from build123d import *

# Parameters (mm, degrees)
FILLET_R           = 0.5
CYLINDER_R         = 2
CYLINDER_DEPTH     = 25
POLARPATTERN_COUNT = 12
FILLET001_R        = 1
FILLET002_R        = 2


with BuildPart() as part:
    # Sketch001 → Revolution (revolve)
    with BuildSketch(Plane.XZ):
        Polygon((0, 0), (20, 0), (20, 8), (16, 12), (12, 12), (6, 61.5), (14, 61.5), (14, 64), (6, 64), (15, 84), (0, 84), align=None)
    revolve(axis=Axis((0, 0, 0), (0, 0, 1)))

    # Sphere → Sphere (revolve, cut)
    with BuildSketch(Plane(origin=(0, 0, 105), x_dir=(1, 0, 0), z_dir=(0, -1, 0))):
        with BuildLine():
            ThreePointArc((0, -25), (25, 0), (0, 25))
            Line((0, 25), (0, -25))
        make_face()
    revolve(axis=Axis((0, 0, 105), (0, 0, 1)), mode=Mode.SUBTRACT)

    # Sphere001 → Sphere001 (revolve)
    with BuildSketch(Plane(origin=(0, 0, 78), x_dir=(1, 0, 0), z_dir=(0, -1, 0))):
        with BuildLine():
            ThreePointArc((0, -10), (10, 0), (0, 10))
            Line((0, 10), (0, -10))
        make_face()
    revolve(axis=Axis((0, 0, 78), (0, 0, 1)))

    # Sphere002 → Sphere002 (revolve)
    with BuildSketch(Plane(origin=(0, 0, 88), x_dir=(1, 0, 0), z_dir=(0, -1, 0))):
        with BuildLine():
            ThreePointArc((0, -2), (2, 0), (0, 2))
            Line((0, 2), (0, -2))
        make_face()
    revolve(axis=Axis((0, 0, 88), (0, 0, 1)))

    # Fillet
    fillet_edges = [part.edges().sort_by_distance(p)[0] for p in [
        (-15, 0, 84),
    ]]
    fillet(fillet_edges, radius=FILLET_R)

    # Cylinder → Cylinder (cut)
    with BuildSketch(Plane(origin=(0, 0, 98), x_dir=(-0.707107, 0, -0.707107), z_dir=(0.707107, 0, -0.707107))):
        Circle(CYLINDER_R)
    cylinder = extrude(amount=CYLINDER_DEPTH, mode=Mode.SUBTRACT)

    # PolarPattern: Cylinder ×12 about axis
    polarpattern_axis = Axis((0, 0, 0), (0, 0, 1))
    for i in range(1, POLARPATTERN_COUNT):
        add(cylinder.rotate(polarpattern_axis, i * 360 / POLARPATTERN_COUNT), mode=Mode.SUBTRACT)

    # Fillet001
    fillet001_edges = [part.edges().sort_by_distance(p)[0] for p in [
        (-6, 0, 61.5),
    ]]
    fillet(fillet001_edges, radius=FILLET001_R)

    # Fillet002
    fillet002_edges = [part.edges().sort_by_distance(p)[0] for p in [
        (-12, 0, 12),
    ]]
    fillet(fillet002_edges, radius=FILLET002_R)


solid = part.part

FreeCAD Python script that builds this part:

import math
import FreeCAD as App
import Part
import Sketcher
from FreeCAD import Vector
Q = App.Units.Quantity


def edges_at(feature, points):
    """Names of the edges that pass closest to the given points."""
    edges = feature.Shape.Edges
    near = lambda p: min(range(len(edges)), key=lambda i: edges[i].distToShape(Part.Vertex(*p))[0])
    return sorted({f"Edge{near(p) + 1}" for p in points})

doc = App.newDocument("Part")
body = doc.addObject("PartDesign::Body", "Body")

# Sketch on XZ plane
sketch1 = body.newObject("Sketcher::SketchObject", "Sketch")
sketch1.AttachmentSupport = (doc.getObject("XZ_Plane"), [""])
sketch1.MapMode = "FlatFace"
sketch1.addGeometry(Part.LineSegment(Vector(0, 0, 0), Vector(20, 0, 0)), False)
sketch1.addGeometry(Part.LineSegment(Vector(20, 0, 0), Vector(20, 8, 0)), False)
sketch1.addGeometry(Part.LineSegment(Vector(20, 8, 0), Vector(16, 12, 0)), False)
sketch1.addGeometry(Part.LineSegment(Vector(16, 12, 0), Vector(12, 12, 0)), False)
sketch1.addGeometry(Part.LineSegment(Vector(12, 12, 0), Vector(6, 61.5, 0)), False)
sketch1.addGeometry(Part.LineSegment(Vector(6, 61.5, 0), Vector(14, 61.5, 0)), False)
sketch1.addGeometry(Part.LineSegment(Vector(14, 61.5, 0), Vector(14, 64, 0)), False)
sketch1.addGeometry(Part.LineSegment(Vector(14, 64, 0), Vector(6, 64, 0)), False)
sketch1.addGeometry(Part.LineSegment(Vector(6, 64, 0), Vector(15, 84, 0)), False)
sketch1.addGeometry(Part.LineSegment(Vector(15, 84, 0), Vector(0, 84, 0)), False)
sketch1.addGeometry(Part.LineSegment(Vector(0, 84, 0), Vector(0, 0, 0)), False)
sketch1.addConstraint(Sketcher.Constraint("Coincident", 0, 2, 1, 1))
sketch1.addConstraint(Sketcher.Constraint("Coincident", 1, 2, 2, 1))
sketch1.addConstraint(Sketcher.Constraint("Coincident", 2, 2, 3, 1))
sketch1.addConstraint(Sketcher.Constraint("Coincident", 3, 2, 4, 1))
sketch1.addConstraint(Sketcher.Constraint("Coincident", 4, 2, 5, 1))
sketch1.addConstraint(Sketcher.Constraint("Coincident", 5, 2, 6, 1))
sketch1.addConstraint(Sketcher.Constraint("Coincident", 6, 2, 7, 1))
sketch1.addConstraint(Sketcher.Constraint("Coincident", 7, 2, 8, 1))
sketch1.addConstraint(Sketcher.Constraint("Coincident", 8, 2, 9, 1))
sketch1.addConstraint(Sketcher.Constraint("Coincident", 9, 2, 10, 1))
sketch1.addConstraint(Sketcher.Constraint("Coincident", 10, 2, 0, 1))
sketch1.addConstraint(Sketcher.Constraint("Horizontal", 0))
sketch1.addConstraint(Sketcher.Constraint("Vertical", 1))
sketch1.addConstraint(Sketcher.Constraint("Horizontal", 3))
sketch1.addConstraint(Sketcher.Constraint("Horizontal", 5))
sketch1.addConstraint(Sketcher.Constraint("Vertical", 6))
sketch1.addConstraint(Sketcher.Constraint("Horizontal", 7))
sketch1.addConstraint(Sketcher.Constraint("Horizontal", 9))
sketch1.addConstraint(Sketcher.Constraint("Vertical", 10))
sketch1.addConstraint(Sketcher.Constraint("Coincident", 10, 2, -1, 1))
sketch1.addConstraint(Sketcher.Constraint("Vertical", 4, 2, 7, 2))
sketch1.addConstraint(Sketcher.Constraint("Equal", 7, 1))
sketch1.addConstraint(Sketcher.Constraint("DistanceX", 0, 1, 0, 2, 20.0))
sketch1.addConstraint(Sketcher.Constraint("DistanceX", 3, 2, 3, 1, 4.0))
sketch1.addConstraint(Sketcher.Constraint("DistanceX", 5, 1, 5, 2, 8.0))
sketch1.addConstraint(Sketcher.Constraint("DistanceX", 9, 2, 9, 1, 15.0))
sketch1.addConstraint(Sketcher.Constraint("DistanceY", 10, 2, 10, 1, 84.0))
sketch1.addConstraint(Sketcher.Constraint("Angle", 2, Q("135 deg")))
sketch1.addConstraint(Sketcher.Constraint("DistanceY", 6, 1, 6, 2, 2.5))
sketch1.addConstraint(Sketcher.Constraint("DistanceX", -1, 1, 2, 2, 16.0))
sketch1.addConstraint(Sketcher.Constraint("DistanceX", -1, 1, 4, 2, 6.0))
sketch1.addConstraint(Sketcher.Constraint("DistanceY", -1, 1, 6, 2, 64.0))
revolution = body.newObject("PartDesign::Revolution", "Revolution")
revolution.Profile = sketch1
revolution.ReferenceAxis = (sketch1, ["V_Axis"])
revolution.Angle = 360

# Sketch on XZ plane
sketch2 = body.newObject("Sketcher::SketchObject", "Sketch001")
sketch2.AttachmentSupport = (doc.getObject("XZ_Plane"), [""])
sketch2.MapMode = "FlatFace"
sketch2.addGeometry(Part.ArcOfCircle(Part.Circle(Vector(0, 105, 0), Vector(0, 0, 1), 25), math.radians(-90), math.radians(90)), False)
sketch2.addGeometry(Part.LineSegment(Vector(0, 130, 0), Vector(0, 80, 0)), False)
sketch2.addConstraint(Sketcher.Constraint("Coincident", 0, 1, 1, 2))
sketch2.addConstraint(Sketcher.Constraint("Coincident", 1, 1, 0, 2))
sketch2.addConstraint(Sketcher.Constraint("Vertical", 1))
sketch2.addConstraint(Sketcher.Constraint("PointOnObject", 0, 3, -2))
sketch2.addConstraint(Sketcher.Constraint("PointOnObject", 0, 1, -2))
sketch2.addConstraint(Sketcher.Constraint("Radius", 0, 25.0))
sketch2.addConstraint(Sketcher.Constraint("DistanceY", -1, 1, 0, 3, 105.0))
groove = body.newObject("PartDesign::Groove", "Groove")
groove.Profile = sketch2
groove.ReferenceAxis = (sketch2, ["V_Axis"])
groove.Angle = 360

# Sketch on XZ plane
sketch3 = body.newObject("Sketcher::SketchObject", "Sketch002")
sketch3.AttachmentSupport = (doc.getObject("XZ_Plane"), [""])
sketch3.MapMode = "FlatFace"
sketch3.addGeometry(Part.ArcOfCircle(Part.Circle(Vector(0, 78, 0), Vector(0, 0, 1), 10), math.radians(-90), math.radians(90)), False)
sketch3.addGeometry(Part.LineSegment(Vector(0, 88, 0), Vector(0, 68, 0)), False)
sketch3.addConstraint(Sketcher.Constraint("Coincident", 0, 1, 1, 2))
sketch3.addConstraint(Sketcher.Constraint("Coincident", 1, 1, 0, 2))
sketch3.addConstraint(Sketcher.Constraint("Vertical", 1))
sketch3.addConstraint(Sketcher.Constraint("PointOnObject", 0, 3, -2))
sketch3.addConstraint(Sketcher.Constraint("PointOnObject", 0, 1, -2))
sketch3.addConstraint(Sketcher.Constraint("Radius", 0, 10.0))
sketch3.addConstraint(Sketcher.Constraint("DistanceY", -1, 1, 0, 3, 78.0))
revolution2 = body.newObject("PartDesign::Revolution", "Revolution001")
revolution2.Profile = sketch3
revolution2.ReferenceAxis = (sketch3, ["V_Axis"])
revolution2.Angle = 360

# Sketch on XZ plane
sketch4 = body.newObject("Sketcher::SketchObject", "Sketch003")
sketch4.AttachmentSupport = (doc.getObject("XZ_Plane"), [""])
sketch4.MapMode = "FlatFace"
sketch4.addGeometry(Part.ArcOfCircle(Part.Circle(Vector(0, 88, 0), Vector(0, 0, 1), 2), math.radians(-90), math.radians(90)), False)
sketch4.addGeometry(Part.LineSegment(Vector(0, 90, 0), Vector(0, 86, 0)), False)
sketch4.addConstraint(Sketcher.Constraint("Coincident", 0, 1, 1, 2))
sketch4.addConstraint(Sketcher.Constraint("Coincident", 1, 1, 0, 2))
sketch4.addConstraint(Sketcher.Constraint("Vertical", 1))
sketch4.addConstraint(Sketcher.Constraint("PointOnObject", 0, 3, -2))
sketch4.addConstraint(Sketcher.Constraint("PointOnObject", 0, 1, -2))
sketch4.addConstraint(Sketcher.Constraint("Radius", 0, 2.0))
sketch4.addConstraint(Sketcher.Constraint("DistanceY", -1, 1, 0, 3, 88.0))
revolution3 = body.newObject("PartDesign::Revolution", "Revolution002")
revolution3.Profile = sketch4
revolution3.ReferenceAxis = (sketch4, ["V_Axis"])
revolution3.Angle = 360
doc.recompute()

fillet = body.newObject("PartDesign::Fillet", "Fillet")
fillet.Base = (revolution3, edges_at(revolution3, [(-15, 0, 84)]))
fillet.Radius = 0.5

# Sketch on an angled plane
sketch5 = body.newObject("Sketcher::SketchObject", "Sketch004")
sketch5.Placement = App.Placement(Vector(0, 0, 98), App.Rotation(Vector(-0.707106781, 0, -0.707106781), Vector(0, 0.999999999, 0), Vector(0.707106781, 0, -0.707106781), "ZXY"))
sketch5.addGeometry(Part.Circle(Vector(0, 0, 0), Vector(0, 0, 1), 2), False)
sketch5.addConstraint(Sketcher.Constraint("Coincident", 0, 3, -1, 1))
sketch5.addConstraint(Sketcher.Constraint("Diameter", 0, 4.0))
pocket1 = body.newObject("PartDesign::Pocket", "Pocket")
pocket1.Profile = sketch5
pocket1.Length = 25
pocket1.Reversed = True
doc.recompute()

polarpattern = body.newObject("PartDesign::PolarPattern", "PolarPattern")
polarpattern.Originals = [pocket1]
polarpattern.Axis = (doc.getObject("Z_Axis"), [""])
polarpattern.Angle = 360
polarpattern.Occurrences = 12
body.Tip = polarpattern
doc.recompute()

fillet2 = body.newObject("PartDesign::Fillet", "Fillet001")
fillet2.Base = (polarpattern, edges_at(polarpattern, [(-6, 0, 61.5)]))
fillet2.Radius = 1
doc.recompute()

fillet3 = body.newObject("PartDesign::Fillet", "Fillet002")
fillet3.Base = (fillet2, edges_at(fillet2, [(-12, 0, 12)]))
fillet3.Radius = 2

doc.recompute()
